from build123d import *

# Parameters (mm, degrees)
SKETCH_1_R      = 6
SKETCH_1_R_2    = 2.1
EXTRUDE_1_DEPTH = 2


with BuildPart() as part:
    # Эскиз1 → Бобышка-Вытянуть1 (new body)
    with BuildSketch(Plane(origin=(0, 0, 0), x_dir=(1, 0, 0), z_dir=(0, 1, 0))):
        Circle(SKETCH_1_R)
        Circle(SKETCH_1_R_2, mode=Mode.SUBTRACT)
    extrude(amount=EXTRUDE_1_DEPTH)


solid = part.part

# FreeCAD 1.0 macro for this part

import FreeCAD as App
import Part
import Sketcher
from FreeCAD import Vector
Q = App.Units.Quantity

doc = App.newDocument("Part")
body = doc.addObject("PartDesign::Body", "Body")

# Sketch on XZ plane
sketch1 = body.newObject("Sketcher::SketchObject", "Sketch")
sketch1.AttachmentSupport = (doc.getObject("XZ_Plane"), [""])
sketch1.MapMode = "FlatFace"
sketch1.addGeometry([
    Part.Circle(Vector(0, 0, 0), Vector(0, 0, 1), 6),
    Part.Circle(Vector(0, 0, 0), Vector(0, 0, 1), 2.1),
], False)
sketch1.addConstraint([
    Sketcher.Constraint("Coincident", 0, 3, -1, 1),
    Sketcher.Constraint("Coincident", 1, 3, -1, 1),
    Sketcher.Constraint("Diameter", 0, Q("12 mm")),
    Sketcher.Constraint("Diameter", 1, Q("4.2 mm")),
])
pad1 = body.newObject("PartDesign::Pad", "Pad")
pad1.Profile = sketch1
pad1.Length = 2
pad1.Reversed = True

doc.recompute()
